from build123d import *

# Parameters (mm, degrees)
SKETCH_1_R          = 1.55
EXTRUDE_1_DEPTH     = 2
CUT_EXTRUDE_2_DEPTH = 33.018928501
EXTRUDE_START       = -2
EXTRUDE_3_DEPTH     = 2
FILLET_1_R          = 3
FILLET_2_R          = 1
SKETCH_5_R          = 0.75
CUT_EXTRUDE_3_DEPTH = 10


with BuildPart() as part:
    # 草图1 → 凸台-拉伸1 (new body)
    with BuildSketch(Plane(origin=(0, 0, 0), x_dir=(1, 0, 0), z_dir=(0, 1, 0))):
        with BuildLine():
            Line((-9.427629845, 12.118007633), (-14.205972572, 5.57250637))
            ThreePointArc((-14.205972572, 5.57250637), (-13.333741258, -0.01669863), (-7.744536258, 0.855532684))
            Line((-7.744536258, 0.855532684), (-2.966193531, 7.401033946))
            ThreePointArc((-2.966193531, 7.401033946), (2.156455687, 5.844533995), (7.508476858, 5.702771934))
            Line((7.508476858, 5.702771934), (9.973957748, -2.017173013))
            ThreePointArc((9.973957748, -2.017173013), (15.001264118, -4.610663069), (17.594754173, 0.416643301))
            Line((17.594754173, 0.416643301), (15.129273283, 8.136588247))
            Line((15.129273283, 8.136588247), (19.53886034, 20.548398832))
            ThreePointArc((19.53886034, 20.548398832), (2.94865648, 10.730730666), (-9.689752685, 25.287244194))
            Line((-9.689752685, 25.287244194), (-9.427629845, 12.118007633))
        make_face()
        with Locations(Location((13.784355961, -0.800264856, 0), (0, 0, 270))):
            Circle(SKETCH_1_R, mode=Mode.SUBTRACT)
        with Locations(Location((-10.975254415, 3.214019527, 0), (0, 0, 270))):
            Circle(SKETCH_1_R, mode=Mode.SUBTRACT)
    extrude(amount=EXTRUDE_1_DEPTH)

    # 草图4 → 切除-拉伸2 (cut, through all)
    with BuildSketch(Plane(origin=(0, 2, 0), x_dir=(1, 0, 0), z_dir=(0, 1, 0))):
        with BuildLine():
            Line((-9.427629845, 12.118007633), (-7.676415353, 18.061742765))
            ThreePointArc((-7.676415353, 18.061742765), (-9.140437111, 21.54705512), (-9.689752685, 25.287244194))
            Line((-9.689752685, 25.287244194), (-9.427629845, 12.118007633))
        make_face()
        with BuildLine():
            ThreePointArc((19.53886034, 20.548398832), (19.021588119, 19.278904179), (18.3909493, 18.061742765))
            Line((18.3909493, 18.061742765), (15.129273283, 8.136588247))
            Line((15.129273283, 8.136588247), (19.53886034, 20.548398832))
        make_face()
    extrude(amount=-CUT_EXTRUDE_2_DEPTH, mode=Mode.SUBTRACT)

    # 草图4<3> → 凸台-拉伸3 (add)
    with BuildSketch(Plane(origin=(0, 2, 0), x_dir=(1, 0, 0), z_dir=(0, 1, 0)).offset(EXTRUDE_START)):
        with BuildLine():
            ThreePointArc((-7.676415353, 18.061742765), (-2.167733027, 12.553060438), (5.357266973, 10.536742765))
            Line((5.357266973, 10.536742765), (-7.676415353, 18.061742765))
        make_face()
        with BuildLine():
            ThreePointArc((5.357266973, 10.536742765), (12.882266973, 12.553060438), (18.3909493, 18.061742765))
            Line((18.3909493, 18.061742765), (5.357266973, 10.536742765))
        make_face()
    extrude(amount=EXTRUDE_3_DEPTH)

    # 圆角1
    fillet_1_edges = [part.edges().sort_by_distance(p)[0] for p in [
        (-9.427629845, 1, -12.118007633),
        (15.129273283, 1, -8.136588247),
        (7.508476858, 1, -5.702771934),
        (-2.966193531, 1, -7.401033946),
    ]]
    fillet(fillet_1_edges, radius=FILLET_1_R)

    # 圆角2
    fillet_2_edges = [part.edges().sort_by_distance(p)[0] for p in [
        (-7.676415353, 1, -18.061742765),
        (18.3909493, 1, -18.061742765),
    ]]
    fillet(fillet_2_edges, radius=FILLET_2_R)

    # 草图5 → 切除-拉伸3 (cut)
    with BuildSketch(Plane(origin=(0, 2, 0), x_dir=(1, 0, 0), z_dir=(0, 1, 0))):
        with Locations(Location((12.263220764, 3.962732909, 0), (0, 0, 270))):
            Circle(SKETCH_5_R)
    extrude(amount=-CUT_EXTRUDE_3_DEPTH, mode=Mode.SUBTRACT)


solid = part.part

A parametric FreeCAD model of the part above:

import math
import FreeCAD as App
import Part
import Sketcher

V = App.Vector
Q = App.Units.Quantity


def edges_at(feature, points):
    """Names of the edges that pass closest to the given points."""
    edges = feature.Shape.Edges
    near = lambda p: min(range(len(edges)), key=lambda i: edges[i].distToShape(Part.Vertex(*p))[0])
    return sorted({f"Edge{near(p) + 1}" for p in points})

doc = App.newDocument("Part")
body = doc.addObject("PartDesign::Body", "Body")

sketch1 = doc.addObject("Sketcher::SketchObject", "Sketch")
body.addObject(sketch1)
sketch1.AttachmentSupport = (doc.XZ_Plane, [""])
sketch1.MapMode = "FlatFace"
sketch1.addGeometry([
    Part.LineSegment(V(-9.42763, -12.118008, 0), V(-14.205973, -5.572506, 0)),
    Part.ArcOfCircle(Part.Circle(V(-10.975254, -3.21402, 0), V(0, 0, 1), 4), math.radians(36.130168), math.radians(216.130168)),
    Part.LineSegment(V(-7.744536, -0.855533, 0), V(-2.966194, -7.401034, 0)),
    Part.ArcOfCircle(Part.Circle(V(5.357267, -25.586743, 0), V(0, 0, 1), 20), math.radians(83.825292), math.radians(114.593209)),
    Part.LineSegment(V(7.508477, -5.702772, 0), V(9.973958, 2.017173, 0)),
    Part.ArcOfCircle(Part.Circle(V(13.784356, 0.800265, 0), V(0, 0, 1), 4), math.radians(-17.711667), math.radians(162.288333)),
    Part.LineSegment(V(17.594754, -0.416643, 0), V(15.129273, -8.136588, 0)),
    Part.LineSegment(V(15.129273, -8.136588, 0), V(19.53886, -20.548399, 0)),
    Part.ArcOfCircle(Part.Circle(V(5.357267, -25.586743, 0), V(0, 0, 1), 15.05), math.radians(19.558776), math.radians(178.859725)),
    Part.LineSegment(V(-9.689753, -25.287244, 0), V(-9.42763, -12.118008, 0)),
    Part.Circle(V(13.784356, 0.800265, 0), V(0, 0, 1), 1.55),
    Part.Circle(V(-10.975254, -3.21402, 0), V(0, 0, 1), 1.55),
], False)
sketch1.addConstraint([
    Sketcher.Constraint("Tangent", 0, 2, 1, 2),
    Sketcher.Constraint("Tangent", 1, 1, 2, 1),
    Sketcher.Constraint("Coincident", 2, 2, 3, 2),
    Sketcher.Constraint("Coincident", 3, 1, 4, 1),
    Sketcher.Constraint("Tangent", 4, 2, 5, 2),
    Sketcher.Constraint("Tangent", 5, 1, 6, 1),
    Sketcher.Constraint("Coincident", 6, 2, 7, 1),
    Sketcher.Constraint("Tangent", 7, 2, 8, 1),
    Sketcher.Constraint("Tangent", 8, 2, 9, 1),
    Sketcher.Constraint("Coincident", 9, 2, 0, 1),
    Sketcher.Constraint("Coincident", 8, 3, 3, 3),
    Sketcher.Constraint("Coincident", 10, 3, 5, 3),
    Sketcher.Constraint("Coincident", 11, 3, 1, 3),
    Sketcher.Constraint("Equal", 1, 5),
    Sketcher.Constraint("Equal", 10, 11),
    Sketcher.Constraint("Parallel", 0, 2),
    Sketcher.Constraint("Parallel", 4, 6),
    Sketcher.Constraint("Equal", 0, 2),
    Sketcher.Constraint("Equal", 2, 4),
    Sketcher.Constraint("Equal", 4, 6),
    Sketcher.Constraint("Equal", 7, 9),
    Sketcher.Constraint("Radius", 1, 4.0),
    Sketcher.Constraint("Radius", 3, 20.0),
    Sketcher.Constraint("Diameter", 10, 3.1),
    Sketcher.Constraint("Radius", 8, 15.05),
    Sketcher.Constraint("DistanceY", 7, 2, -1, 1, 20.548399),
    Sketcher.Constraint("DistanceY", 2, 2, 1, 1, 6.545501),
    Sketcher.Constraint("DistanceY", 2, 2, 10, 3, 8.201299),
    Sketcher.Constraint("DistanceX", 4, 2, 5, 3, 3.810398),
    Sketcher.Constraint("DistanceY", 3, 3, 8, 2, 0.299499),
    Sketcher.Constraint("DistanceX", -1, 1, 7, 2, 19.53886),
])
pad1 = doc.addObject("PartDesign::Pad", "Pad")
body.addObject(pad1)
pad1.Profile = sketch1
pad1.Length = 2
pad1.Reversed = True

sketch2 = doc.addObject("Sketcher::SketchObject", "Sketch001")
body.addObject(sketch2)
sketch2.AttachmentSupport = (doc.XZ_Plane, [""])
sketch2.MapMode = "FlatFace"
sketch2.AttachmentOffset = App.Placement(V(0, 0, -2), App.Rotation())
sketch2.addGeometry([
    Part.LineSegment(V(-9.42763, -12.118008, 0), V(-7.676415, -18.061743, 0)),
    Part.ArcOfCircle(Part.Circle(V(5.357267, -25.586743, 0), V(0, 0, 1), 15.05), math.radians(150), math.radians(178.859725)),
    Part.LineSegment(V(-9.689753, -25.287244, 0), V(-9.42763, -12.118008, 0)),
    Part.ArcOfCircle(Part.Circle(V(5.357267, -25.586743, 0), V(0, 0, 1), 15.05), math.radians(19.558776), math.radians(30)),
    Part.LineSegment(V(18.390949, -18.061743, 0), V(15.129273, -8.136588, 0)),
    Part.LineSegment(V(15.129273, -8.136588, 0), V(19.53886, -20.548399, 0)),
], False)
sketch2.addConstraint([
    Sketcher.Constraint("Coincident", 0, 2, 1, 1),
    Sketcher.Constraint("Tangent", 1, 2, 2, 1),
    Sketcher.Constraint("Coincident", 2, 2, 0, 1),
    Sketcher.Constraint("Coincident", 3, 2, 4, 1),
    Sketcher.Constraint("Coincident", 4, 2, 5, 1),
    Sketcher.Constraint("Tangent", 5, 2, 3, 1),
    Sketcher.Constraint("Coincident", 3, 3, 1, 3),
    Sketcher.Constraint("Equal", 1, 3),
    Sketcher.Constraint("Horizontal", 0, 2, 3, 2),
    Sketcher.Constraint("Equal", 2, 5),
    Sketcher.Constraint("Radius", 1, 15.05),
    Sketcher.Constraint("DistanceY", 1, 3, 0, 2, 7.525),
    Sketcher.Constraint("DistanceY", 5, 2, -1, 1, 20.548399),
    Sketcher.Constraint("DistanceY", 1, 2, 0, 2, 7.225501),
    Sketcher.Constraint("Distance", 0, 6.196349),
    Sketcher.Constraint("DistanceX", 2, 2, -1, 1, 9.42763),
    Sketcher.Constraint("DistanceY", 4, 2, -1, 1, 8.136588),
])
pocket1 = doc.addObject("PartDesign::Pocket", "Pocket")
body.addObject(pocket1)
pocket1.Profile = sketch2
pocket1.Type = "ThroughAll"
pocket1.Reversed = True

sketch3 = doc.addObject("Sketcher::SketchObject", "Sketch002")
body.addObject(sketch3)
sketch3.AttachmentSupport = (doc.XZ_Plane, [""])
sketch3.MapMode = "FlatFace"
sketch3.addGeometry([
    Part.ArcOfCircle(Part.Circle(V(5.357267, -25.586743, 0), V(0, 0, 1), 15.05), math.radians(90), math.radians(150)),
    Part.LineSegment(V(5.357267, -10.536743, 0), V(-7.676415, -18.061743, 0)),
    Part.ArcOfCircle(Part.Circle(V(5.357267, -25.586743, 0), V(0, 0, 1), 15.05), math.radians(30), math.radians(90)),
    Part.LineSegment(V(18.390949, -18.061743, 0), V(5.357267, -10.536743, 0)),
], False)
sketch3.addConstraint([
    Sketcher.Constraint("Coincident", 0, 1, 1, 1),
    Sketcher.Constraint("Coincident", 1, 2, 0, 2),
    Sketcher.Constraint("Coincident", 2, 1, 3, 1),
    Sketcher.Constraint("Coincident", 3, 2, 2, 2),
    Sketcher.Constraint("Coincident", 2, 3, 0, 3),
    Sketcher.Constraint("Coincident", 3, 2, 0, 1),
    Sketcher.Constraint("Horizontal", 1, 2, 2, 1),
    Sketcher.Constraint("Vertical", 2, 3, 0, 1),
    Sketcher.Constraint("Angle", 1, Q("-150 deg")),
    Sketcher.Constraint("Radius", 0, 15.05),
    Sketcher.Constraint("DistanceX", -1, 1, 2, 1, 18.390949),
    Sketcher.Constraint("DistanceY", 0, 3, -1, 1, 25.586743),
])
pad2 = doc.addObject("PartDesign::Pad", "Pad001")
body.addObject(pad2)
pad2.Profile = sketch3
pad2.Length = 2
pad2.Reversed = True
doc.recompute()

fillet = doc.addObject("PartDesign::Fillet", "Fillet")
body.addObject(fillet)
fillet.Base = (pad2, edges_at(pad2, [
    (-9.428, 1, -12.118),
    (15.129, 1, -8.137),
    (7.508, 1, -5.703),
    (-2.966, 1, -7.401),
]))
fillet.Radius = 3
doc.recompute()

fillet2 = doc.addObject("PartDesign::Fillet", "Fillet001")
body.addObject(fillet2)
fillet2.Base = (fillet, edges_at(fillet, [(-7.676, 1, -18.062), (18.391, 1, -18.062)]))
fillet2.Radius = 1

sketch4 = doc.addObject("Sketcher::SketchObject", "Sketch003")
body.addObject(sketch4)
sketch4.AttachmentSupport = (doc.XZ_Plane, [""])
sketch4.MapMode = "FlatFace"
sketch4.AttachmentOffset = App.Placement(V(0, 0, -2), App.Rotation())
sketch4.addGeometry(Part.Circle(V(12.263221, -3.962733, 0), V(0, 0, 1), 0.75), False)
sketch4.addConstraint([
    Sketcher.Constraint("Diameter", 0, 1.5),
    Sketcher.Constraint("DistanceX", -1, 1, 0, 3, 12.263221),
    Sketcher.Constraint("DistanceY", 0, 3, -1, 1, 3.962733),
])
pocket2 = doc.addObject("PartDesign::Pocket", "Pocket001")
body.addObject(pocket2)
pocket2.Profile = sketch4
pocket2.Length = 10
pocket2.Reversed = True

doc.recompute()
